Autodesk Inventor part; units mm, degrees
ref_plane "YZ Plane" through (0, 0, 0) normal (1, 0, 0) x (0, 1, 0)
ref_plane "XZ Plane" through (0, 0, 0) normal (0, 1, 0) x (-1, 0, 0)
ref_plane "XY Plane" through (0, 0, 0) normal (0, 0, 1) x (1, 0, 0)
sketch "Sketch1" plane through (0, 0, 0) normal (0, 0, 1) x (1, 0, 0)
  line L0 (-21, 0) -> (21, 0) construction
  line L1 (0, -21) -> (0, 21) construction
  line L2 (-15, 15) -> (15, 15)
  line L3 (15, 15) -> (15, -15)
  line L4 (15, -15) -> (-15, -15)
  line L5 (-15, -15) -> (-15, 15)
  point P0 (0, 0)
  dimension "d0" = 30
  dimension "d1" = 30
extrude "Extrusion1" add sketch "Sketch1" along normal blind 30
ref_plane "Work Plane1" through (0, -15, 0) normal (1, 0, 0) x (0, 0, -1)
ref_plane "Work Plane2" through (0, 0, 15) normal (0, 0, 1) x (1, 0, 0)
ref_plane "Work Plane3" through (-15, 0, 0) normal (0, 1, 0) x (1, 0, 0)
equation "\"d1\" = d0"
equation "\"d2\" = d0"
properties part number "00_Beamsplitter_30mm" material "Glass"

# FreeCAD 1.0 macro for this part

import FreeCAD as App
import Part
import Sketcher

V = App.Vector
Q = App.Units.Quantity

doc = App.newDocument("Part")
body = doc.addObject("PartDesign::Body", "Body")

# Sketch on XY plane
sketch1 = body.newObject("Sketcher::SketchObject", "Sketch")
sketch1.AttachmentSupport = (doc.getObject("XY_Plane"), [""])
sketch1.MapMode = "FlatFace"
sketch1.addGeometry(Part.LineSegment(V(15, 15, 0), V(-15, 15, 0)), False)
sketch1.addGeometry(Part.LineSegment(V(-15, 15, 0), V(-15, -15, 0)), False)
sketch1.addGeometry(Part.LineSegment(V(-15, -15, 0), V(15, -15, 0)), False)
sketch1.addGeometry(Part.LineSegment(V(15, -15, 0), V(15, 15, 0)), False)
sketch1.addConstraint(Sketcher.Constraint("Coincident", 0, 2, 1, 1))
sketch1.addConstraint(Sketcher.Constraint("Coincident", 1, 2, 2, 1))
sketch1.addConstraint(Sketcher.Constraint("Coincident", 2, 2, 3, 1))
sketch1.addConstraint(Sketcher.Constraint("Coincident", 3, 2, 0, 1))
sketch1.addConstraint(Sketcher.Constraint("Horizontal", 0))
sketch1.addConstraint(Sketcher.Constraint("Vertical", 1))
sketch1.addConstraint(Sketcher.Constraint("Horizontal", 2))
sketch1.addConstraint(Sketcher.Constraint("Vertical", 3))
sketch1.addConstraint(Sketcher.Constraint("Symmetric", 0, 2, 2, 2, -1, 1))
sketch1.addConstraint(Sketcher.Constraint("Equal", 2, 1))
sketch1.addConstraint(Sketcher.Constraint("DistanceX", 0, 2, 0, 1, Q("30 mm")))
pad1 = body.newObject("PartDesign::Pad", "Pad")
pad1.Profile = sketch1
pad1.Length = 30

doc.recompute()
